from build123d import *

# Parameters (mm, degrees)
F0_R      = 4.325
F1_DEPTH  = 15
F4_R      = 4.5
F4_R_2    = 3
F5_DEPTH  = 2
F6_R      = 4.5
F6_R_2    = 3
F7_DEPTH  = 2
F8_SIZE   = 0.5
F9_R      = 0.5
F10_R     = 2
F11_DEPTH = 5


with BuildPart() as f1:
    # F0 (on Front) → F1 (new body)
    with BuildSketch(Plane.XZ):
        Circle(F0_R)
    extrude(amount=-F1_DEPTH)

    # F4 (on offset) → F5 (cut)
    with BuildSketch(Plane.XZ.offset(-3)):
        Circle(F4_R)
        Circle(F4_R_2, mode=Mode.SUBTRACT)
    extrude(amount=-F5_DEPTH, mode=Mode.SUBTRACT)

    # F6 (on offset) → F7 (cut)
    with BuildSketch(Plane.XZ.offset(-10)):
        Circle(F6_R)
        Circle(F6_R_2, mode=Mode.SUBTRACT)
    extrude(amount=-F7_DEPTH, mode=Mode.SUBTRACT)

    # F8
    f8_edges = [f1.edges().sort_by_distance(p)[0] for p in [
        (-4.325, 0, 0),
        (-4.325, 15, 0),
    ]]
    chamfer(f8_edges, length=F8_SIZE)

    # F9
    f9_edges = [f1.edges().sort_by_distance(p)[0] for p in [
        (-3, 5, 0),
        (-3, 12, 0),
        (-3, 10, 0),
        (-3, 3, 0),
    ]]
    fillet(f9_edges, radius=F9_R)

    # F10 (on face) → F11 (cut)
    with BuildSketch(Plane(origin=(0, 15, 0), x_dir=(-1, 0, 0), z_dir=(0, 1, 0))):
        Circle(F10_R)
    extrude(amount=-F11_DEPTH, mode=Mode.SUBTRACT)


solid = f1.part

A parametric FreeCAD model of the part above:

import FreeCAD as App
import Part
import Sketcher
from FreeCAD import Vector


def edges_at(feature, points):
    """Names of the edges that pass closest to the given points."""
    edges = feature.Shape.Edges
    near = lambda p: min(range(len(edges)), key=lambda i: edges[i].distToShape(Part.Vertex(*p))[0])
    return sorted({f"Edge{near(p) + 1}" for p in points})

doc = App.newDocument("Part")
body = doc.addObject("PartDesign::Body", "Body")

# Sketch on XZ plane
sketch1 = body.newObject("Sketcher::SketchObject", "Sketch")
sketch1.AttachmentSupport = (doc.getObject("XZ_Plane"), [""])
sketch1.MapMode = "FlatFace"
sketch1.addGeometry(Part.Circle(Vector(0, 0, 0), Vector(0, 0, 1), 4.3), False)
sketch1.addConstraint([
    Sketcher.Constraint("Coincident", 0, 3, -1, 1),
    Sketcher.Constraint("Diameter", 0, 8.65),
])
pad1 = body.newObject("PartDesign::Pad", "Pad")
pad1.Profile = sketch1
pad1.Length = 15
pad1.Reversed = True

# Sketch on XZ plane
sketch2 = body.newObject("Sketcher::SketchObject", "Sketch001")
sketch2.AttachmentSupport = (doc.getObject("XZ_Plane"), [""])
sketch2.MapMode = "FlatFace"
sketch2.AttachmentOffset = App.Placement(Vector(0, 0, -3), App.Rotation())
sketch2.addGeometry([
    Part.Circle(Vector(0, 0, 0), Vector(0, 0, 1), 4.5),
    Part.Circle(Vector(0, 0, 0), Vector(0, 0, 1), 3),
], False)
sketch2.addConstraint([
    Sketcher.Constraint("Coincident", 0, 3, -1, 1),
    Sketcher.Constraint("Coincident", 1, 3, -1, 1),
    Sketcher.Constraint("Diameter", 0, 9.0),
    Sketcher.Constraint("Diameter", 1, 6.0),
])
pocket1 = body.newObject("PartDesign::Pocket", "Pocket")
pocket1.Profile = sketch2
pocket1.Length = 2

# Sketch on XZ plane
sketch3 = body.newObject("Sketcher::SketchObject", "Sketch002")
sketch3.AttachmentSupport = (doc.getObject("XZ_Plane"), [""])
sketch3.MapMode = "FlatFace"
sketch3.AttachmentOffset = App.Placement(Vector(0, 0, -10), App.Rotation())
sketch3.addGeometry([
    Part.Circle(Vector(0, 0, 0), Vector(0, 0, 1), 4.5),
    Part.Circle(Vector(0, 0, 0), Vector(0, 0, 1), 3),
], False)
sketch3.addConstraint([
    Sketcher.Constraint("Coincident", 0, 3, -1, 1),
    Sketcher.Constraint("Coincident", 1, 3, -1, 1),
    Sketcher.Constraint("Diameter", 0, 9.0),
    Sketcher.Constraint("Diameter", 1, 6.0),
])
pocket2 = body.newObject("PartDesign::Pocket", "Pocket001")
pocket2.Profile = sketch3
pocket2.Length = 2
doc.recompute()

chamfer = body.newObject("PartDesign::Chamfer", "Chamfer")
chamfer.Base = (pocket2, edges_at(pocket2, [(-4.325, 0, 0), (-4.325, 15, 0)]))
chamfer.Size = 0.5
doc.recompute()

fillet = body.newObject("PartDesign::Fillet", "Fillet")
fillet.Base = (chamfer, edges_at(chamfer, [
    (-3, 5, 0),
    (-3, 12, 0),
    (-3, 10, 0),
    (-3, 3, 0),
]))
fillet.Radius = 0.5

# Sketch on XZ plane
sketch4 = body.newObject("Sketcher::SketchObject", "Sketch003")
sketch4.AttachmentSupport = (doc.getObject("XZ_Plane"), [""])
sketch4.MapMode = "FlatFace"
sketch4.AttachmentOffset = App.Placement(Vector(0, 0, -15), App.Rotation())
sketch4.addGeometry(Part.Circle(Vector(0, 0, 0), Vector(0, 0, 1), 2), False)
sketch4.addConstraint([
    Sketcher.Constraint("Coincident", 0, 3, -1, 1),
    Sketcher.Constraint("Diameter", 0, 4.0),
])
pocket3 = body.newObject("PartDesign::Pocket", "Pocket002")
pocket3.Profile = sketch4
pocket3.Length = 5
pocket3.Reversed = True

doc.recompute()
